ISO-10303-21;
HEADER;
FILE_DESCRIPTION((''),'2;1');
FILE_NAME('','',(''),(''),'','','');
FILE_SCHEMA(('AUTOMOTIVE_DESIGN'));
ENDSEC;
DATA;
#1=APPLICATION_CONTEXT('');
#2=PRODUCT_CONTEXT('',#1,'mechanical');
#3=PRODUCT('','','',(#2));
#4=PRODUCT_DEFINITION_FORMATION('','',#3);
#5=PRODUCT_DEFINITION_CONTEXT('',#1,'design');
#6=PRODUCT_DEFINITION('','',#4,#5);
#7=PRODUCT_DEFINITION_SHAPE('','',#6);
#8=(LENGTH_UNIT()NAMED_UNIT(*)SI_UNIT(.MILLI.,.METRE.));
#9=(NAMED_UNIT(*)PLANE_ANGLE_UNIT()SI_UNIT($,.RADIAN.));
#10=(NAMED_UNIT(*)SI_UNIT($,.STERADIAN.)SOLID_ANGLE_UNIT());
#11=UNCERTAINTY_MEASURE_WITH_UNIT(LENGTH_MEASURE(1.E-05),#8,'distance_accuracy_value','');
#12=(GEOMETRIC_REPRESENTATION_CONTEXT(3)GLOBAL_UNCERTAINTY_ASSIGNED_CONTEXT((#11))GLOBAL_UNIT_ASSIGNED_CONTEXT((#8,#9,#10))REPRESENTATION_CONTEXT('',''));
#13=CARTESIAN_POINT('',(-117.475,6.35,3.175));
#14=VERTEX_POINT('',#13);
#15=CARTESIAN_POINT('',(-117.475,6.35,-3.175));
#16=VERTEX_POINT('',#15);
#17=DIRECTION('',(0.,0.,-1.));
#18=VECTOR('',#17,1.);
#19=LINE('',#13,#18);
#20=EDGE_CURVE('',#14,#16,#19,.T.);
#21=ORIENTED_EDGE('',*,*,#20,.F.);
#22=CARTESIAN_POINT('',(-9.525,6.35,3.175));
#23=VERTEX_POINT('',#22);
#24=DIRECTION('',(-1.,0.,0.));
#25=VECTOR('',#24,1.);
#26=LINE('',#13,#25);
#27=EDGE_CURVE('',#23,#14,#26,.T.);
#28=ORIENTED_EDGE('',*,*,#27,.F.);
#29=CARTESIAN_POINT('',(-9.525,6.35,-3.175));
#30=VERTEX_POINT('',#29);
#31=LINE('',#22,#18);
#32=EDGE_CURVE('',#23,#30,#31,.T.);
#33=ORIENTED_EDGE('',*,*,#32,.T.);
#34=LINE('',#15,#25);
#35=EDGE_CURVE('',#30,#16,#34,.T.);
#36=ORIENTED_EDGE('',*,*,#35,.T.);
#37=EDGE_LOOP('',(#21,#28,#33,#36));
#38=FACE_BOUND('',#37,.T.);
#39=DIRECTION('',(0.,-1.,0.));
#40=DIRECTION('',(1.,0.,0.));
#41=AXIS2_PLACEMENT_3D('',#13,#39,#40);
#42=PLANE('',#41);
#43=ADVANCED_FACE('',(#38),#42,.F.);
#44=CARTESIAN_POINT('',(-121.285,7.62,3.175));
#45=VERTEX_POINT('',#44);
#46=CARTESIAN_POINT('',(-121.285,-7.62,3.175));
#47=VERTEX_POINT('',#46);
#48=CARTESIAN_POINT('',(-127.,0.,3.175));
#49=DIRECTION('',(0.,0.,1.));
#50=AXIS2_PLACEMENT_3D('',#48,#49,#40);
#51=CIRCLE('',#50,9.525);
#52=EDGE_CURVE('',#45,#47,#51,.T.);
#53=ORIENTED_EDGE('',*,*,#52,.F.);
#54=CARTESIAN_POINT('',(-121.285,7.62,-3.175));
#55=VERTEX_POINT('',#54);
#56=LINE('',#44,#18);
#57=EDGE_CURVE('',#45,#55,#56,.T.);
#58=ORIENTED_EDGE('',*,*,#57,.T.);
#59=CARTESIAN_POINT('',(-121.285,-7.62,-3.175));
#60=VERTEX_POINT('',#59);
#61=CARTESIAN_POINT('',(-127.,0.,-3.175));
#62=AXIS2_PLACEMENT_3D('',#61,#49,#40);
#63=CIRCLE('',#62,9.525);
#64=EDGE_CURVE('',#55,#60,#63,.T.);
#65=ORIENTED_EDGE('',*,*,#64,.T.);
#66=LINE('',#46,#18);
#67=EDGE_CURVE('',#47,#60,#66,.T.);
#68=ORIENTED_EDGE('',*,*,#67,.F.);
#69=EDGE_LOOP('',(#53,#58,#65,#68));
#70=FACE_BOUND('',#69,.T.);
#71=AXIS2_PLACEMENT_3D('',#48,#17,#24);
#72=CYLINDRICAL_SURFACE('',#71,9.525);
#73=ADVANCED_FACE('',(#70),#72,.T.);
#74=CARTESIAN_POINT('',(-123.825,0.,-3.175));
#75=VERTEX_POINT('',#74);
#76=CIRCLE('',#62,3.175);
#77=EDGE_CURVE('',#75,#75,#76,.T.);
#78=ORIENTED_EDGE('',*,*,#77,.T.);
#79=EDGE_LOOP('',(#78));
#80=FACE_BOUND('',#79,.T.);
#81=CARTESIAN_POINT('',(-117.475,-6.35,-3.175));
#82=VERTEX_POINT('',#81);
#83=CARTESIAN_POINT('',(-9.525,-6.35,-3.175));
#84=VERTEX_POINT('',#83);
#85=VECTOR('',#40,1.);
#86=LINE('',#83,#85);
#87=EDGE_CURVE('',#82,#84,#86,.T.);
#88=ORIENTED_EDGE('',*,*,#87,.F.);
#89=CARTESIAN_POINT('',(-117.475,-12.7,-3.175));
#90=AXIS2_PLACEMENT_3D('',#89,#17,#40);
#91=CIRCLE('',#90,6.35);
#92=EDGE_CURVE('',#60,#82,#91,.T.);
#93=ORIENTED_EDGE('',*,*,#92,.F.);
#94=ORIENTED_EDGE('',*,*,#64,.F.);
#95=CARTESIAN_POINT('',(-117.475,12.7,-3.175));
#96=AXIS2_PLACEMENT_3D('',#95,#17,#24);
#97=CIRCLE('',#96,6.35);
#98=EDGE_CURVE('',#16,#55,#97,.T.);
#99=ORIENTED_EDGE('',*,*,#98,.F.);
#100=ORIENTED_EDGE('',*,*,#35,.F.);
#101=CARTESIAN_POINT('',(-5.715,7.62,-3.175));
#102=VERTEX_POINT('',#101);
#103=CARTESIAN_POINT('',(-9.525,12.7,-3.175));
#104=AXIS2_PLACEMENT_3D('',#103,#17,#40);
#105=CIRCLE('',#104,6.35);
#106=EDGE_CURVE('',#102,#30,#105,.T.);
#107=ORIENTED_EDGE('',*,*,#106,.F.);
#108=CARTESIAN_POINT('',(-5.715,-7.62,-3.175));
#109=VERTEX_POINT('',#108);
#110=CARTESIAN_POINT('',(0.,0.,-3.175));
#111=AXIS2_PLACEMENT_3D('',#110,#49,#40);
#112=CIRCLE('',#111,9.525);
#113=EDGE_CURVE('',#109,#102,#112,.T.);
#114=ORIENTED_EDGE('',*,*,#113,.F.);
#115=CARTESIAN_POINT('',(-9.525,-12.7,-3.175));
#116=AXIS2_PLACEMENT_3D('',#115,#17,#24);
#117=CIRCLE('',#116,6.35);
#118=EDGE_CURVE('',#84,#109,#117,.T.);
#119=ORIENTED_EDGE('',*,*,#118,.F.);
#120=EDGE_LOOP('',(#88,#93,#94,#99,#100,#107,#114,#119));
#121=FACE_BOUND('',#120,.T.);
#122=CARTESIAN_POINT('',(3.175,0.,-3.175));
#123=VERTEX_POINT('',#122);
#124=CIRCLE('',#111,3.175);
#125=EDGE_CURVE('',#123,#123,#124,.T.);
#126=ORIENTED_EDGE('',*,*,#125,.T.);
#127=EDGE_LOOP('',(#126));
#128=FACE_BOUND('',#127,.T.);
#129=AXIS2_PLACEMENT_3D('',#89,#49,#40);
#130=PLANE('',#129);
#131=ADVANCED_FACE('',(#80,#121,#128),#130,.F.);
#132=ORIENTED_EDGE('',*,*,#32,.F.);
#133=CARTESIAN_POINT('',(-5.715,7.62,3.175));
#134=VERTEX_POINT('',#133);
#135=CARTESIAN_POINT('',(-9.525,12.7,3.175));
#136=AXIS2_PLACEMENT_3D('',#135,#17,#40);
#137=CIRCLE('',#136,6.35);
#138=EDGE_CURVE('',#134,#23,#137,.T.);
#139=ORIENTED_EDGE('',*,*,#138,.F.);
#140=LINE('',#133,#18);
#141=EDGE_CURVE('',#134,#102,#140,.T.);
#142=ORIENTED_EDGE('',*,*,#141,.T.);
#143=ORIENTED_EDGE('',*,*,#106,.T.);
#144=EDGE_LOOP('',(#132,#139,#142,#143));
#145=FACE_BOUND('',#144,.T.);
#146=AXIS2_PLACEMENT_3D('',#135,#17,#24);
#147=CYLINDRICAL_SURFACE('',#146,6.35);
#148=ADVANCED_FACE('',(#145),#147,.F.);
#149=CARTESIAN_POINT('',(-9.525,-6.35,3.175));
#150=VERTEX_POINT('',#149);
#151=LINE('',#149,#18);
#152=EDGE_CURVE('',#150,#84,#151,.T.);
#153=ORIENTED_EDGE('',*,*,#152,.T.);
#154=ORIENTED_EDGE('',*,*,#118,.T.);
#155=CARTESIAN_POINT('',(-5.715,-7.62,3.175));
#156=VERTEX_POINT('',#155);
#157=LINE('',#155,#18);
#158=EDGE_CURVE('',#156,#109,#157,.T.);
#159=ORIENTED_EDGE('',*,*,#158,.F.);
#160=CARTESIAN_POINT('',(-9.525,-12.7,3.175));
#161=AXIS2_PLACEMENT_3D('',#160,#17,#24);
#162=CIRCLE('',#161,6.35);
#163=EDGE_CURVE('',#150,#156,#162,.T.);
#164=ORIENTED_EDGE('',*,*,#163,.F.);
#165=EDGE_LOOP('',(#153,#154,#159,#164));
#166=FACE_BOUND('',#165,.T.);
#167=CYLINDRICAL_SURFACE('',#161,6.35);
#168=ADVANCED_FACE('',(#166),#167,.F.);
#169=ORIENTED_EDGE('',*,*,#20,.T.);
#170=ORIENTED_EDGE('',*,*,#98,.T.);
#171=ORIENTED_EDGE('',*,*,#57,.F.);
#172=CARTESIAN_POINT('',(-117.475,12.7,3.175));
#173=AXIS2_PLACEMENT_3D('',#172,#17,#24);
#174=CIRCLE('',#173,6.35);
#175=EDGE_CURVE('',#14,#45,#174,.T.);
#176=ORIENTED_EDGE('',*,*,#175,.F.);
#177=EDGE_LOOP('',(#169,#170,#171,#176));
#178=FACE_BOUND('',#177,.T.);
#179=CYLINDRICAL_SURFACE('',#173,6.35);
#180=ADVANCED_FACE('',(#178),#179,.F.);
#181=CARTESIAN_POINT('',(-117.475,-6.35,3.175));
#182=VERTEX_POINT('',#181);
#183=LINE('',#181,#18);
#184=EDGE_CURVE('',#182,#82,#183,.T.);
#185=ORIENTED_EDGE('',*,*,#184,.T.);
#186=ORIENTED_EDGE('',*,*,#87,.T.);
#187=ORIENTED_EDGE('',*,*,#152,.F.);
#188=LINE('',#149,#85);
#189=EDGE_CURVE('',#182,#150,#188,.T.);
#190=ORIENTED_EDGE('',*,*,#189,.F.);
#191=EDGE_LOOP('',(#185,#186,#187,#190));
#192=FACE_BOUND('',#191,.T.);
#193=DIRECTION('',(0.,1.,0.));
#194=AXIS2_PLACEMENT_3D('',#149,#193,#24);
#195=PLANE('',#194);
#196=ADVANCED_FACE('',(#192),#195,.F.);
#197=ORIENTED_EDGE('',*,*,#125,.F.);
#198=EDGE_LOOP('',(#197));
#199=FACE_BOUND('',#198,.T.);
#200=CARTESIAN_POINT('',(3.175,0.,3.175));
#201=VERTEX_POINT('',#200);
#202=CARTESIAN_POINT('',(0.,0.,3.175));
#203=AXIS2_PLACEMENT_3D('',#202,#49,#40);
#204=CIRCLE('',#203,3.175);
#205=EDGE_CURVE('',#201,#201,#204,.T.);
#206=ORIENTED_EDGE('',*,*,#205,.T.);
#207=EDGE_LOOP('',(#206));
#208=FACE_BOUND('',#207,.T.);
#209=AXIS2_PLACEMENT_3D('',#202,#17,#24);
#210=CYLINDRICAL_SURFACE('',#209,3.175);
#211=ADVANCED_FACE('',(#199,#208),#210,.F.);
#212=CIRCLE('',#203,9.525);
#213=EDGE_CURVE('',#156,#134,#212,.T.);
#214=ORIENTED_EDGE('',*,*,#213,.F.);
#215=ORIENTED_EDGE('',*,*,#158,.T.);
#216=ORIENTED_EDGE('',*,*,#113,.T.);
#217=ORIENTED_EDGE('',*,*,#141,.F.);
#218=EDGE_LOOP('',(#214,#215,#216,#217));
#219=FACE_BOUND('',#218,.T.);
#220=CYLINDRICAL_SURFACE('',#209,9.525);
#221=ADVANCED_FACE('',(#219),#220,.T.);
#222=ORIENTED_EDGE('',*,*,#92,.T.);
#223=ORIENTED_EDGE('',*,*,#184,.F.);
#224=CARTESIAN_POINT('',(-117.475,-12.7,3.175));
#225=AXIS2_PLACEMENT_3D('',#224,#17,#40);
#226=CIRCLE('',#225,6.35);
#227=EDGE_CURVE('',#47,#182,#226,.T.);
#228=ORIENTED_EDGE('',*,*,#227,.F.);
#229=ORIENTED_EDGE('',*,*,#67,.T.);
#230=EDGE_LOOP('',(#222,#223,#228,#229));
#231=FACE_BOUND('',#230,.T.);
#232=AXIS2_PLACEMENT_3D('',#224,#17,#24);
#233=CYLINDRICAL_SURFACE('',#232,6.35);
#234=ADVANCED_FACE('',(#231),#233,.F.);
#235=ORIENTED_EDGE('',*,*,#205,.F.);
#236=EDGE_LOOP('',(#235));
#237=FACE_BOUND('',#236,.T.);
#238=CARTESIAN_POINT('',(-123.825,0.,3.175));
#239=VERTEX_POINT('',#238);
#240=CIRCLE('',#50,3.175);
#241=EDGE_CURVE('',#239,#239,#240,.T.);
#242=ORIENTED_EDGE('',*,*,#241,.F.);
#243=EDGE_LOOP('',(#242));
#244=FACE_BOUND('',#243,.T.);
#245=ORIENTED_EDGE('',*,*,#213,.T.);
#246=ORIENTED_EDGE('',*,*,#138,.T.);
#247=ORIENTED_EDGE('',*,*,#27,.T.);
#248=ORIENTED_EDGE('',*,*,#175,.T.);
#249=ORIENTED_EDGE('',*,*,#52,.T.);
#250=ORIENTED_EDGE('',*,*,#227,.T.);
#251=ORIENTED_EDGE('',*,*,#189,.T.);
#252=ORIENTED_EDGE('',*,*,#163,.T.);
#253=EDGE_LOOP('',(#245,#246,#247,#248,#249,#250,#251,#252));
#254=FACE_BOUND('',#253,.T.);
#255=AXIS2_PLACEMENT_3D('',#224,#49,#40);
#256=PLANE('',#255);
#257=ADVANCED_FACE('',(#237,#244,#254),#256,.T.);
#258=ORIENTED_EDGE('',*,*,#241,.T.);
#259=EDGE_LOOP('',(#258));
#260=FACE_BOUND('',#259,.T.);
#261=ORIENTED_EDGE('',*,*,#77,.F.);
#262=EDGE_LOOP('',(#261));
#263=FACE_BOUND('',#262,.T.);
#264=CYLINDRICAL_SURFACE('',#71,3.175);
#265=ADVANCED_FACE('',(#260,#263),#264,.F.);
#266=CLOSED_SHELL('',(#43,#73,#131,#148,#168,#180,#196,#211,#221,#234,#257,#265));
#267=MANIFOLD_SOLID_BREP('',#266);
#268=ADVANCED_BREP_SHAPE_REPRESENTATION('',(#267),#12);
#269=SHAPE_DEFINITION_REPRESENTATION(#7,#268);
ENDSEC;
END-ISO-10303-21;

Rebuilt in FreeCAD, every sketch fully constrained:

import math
import FreeCAD as App
import Part
import Sketcher
from FreeCAD import Vector
Q = App.Units.Quantity

doc = App.newDocument("Part")
body = doc.addObject("PartDesign::Body", "Body")

# Sketch on XY plane
sketch1 = body.newObject("Sketcher::SketchObject", "Sketch")
sketch1.AttachmentSupport = (doc.getObject("XY_Plane"), [""])
sketch1.MapMode = "FlatFace"
sketch1.addGeometry([
    Part.LineSegment(Vector(-9.5, 6.3, 0), Vector(-117.5, 6.3, 0)),  # 0
    Part.ArcOfCircle(Part.Circle(Vector(-117.5, 12.7, 0), Vector(0, 0, 1), 6.3), math.radians(-127), math.radians(-90)),  # 1
    Part.ArcOfCircle(Part.Circle(Vector(-127, 0, 0), Vector(0, 0, 1), 9.5), math.radians(53), math.radians(307)),  # 2
    Part.ArcOfCircle(Part.Circle(Vector(-117.5, -12.7, 0), Vector(0, 0, 1), 6.3), math.radians(90), math.radians(127)),  # 3
    Part.LineSegment(Vector(-117.5, -6.3, 0), Vector(-9.5, -6.3, 0)),  # 4
    Part.ArcOfCircle(Part.Circle(Vector(-9.5, -12.7, 0), Vector(0, 0, 1), 6.3), math.radians(53), math.radians(90)),  # 5
    Part.ArcOfCircle(Part.Circle(Vector(0, 0, 0), Vector(0, 0, 1), 9.5), math.radians(-127), math.radians(127)),  # 6
    Part.ArcOfCircle(Part.Circle(Vector(-9.5, 12.7, 0), Vector(0, 0, 1), 6.3), math.radians(-90), math.radians(-53)),  # 7
    Part.Circle(Vector(0, 0, 0), Vector(0, 0, 1), 3.2),  # 8
    Part.Circle(Vector(-127, 0, 0), Vector(0, 0, 1), 3.2),  # 9
], False)
sketch1.addConstraint([
    Sketcher.Constraint("Tangent", 0, 2, 1, 2),
    Sketcher.Constraint("Tangent", 1, 1, 2, 1),
    Sketcher.Constraint("Tangent", 2, 2, 3, 2),
    Sketcher.Constraint("Tangent", 3, 1, 4, 1),
    Sketcher.Constraint("Tangent", 4, 2, 5, 2),
    Sketcher.Constraint("Tangent", 5, 1, 6, 1),
    Sketcher.Constraint("Tangent", 6, 2, 7, 2),
    Sketcher.Constraint("Tangent", 7, 1, 0, 1),
    Sketcher.Constraint("Horizontal", 0),
    Sketcher.Constraint("Horizontal", 4),
    Sketcher.Constraint("Coincident", 6, 3, -1, 1),
    Sketcher.Constraint("Coincident", 8, 3, -1, 1),
    Sketcher.Constraint("Coincident", 9, 3, 2, 3),
    Sketcher.Constraint("Equal", 1, 3),
    Sketcher.Constraint("Equal", 3, 5),
    Sketcher.Constraint("Equal", 2, 6),
    Sketcher.Constraint("Equal", 5, 7),
    Sketcher.Constraint("Equal", 8, 9),
    Sketcher.Constraint("Symmetric", 1, 3, 3, 3, -1),
    Sketcher.Constraint("Diameter", 8, Q("0.25 in")),
    Sketcher.Constraint("Radius", 1, Q("0.25 in")),
    Sketcher.Constraint("DistanceX", 2, 3, -1, 1, Q("5 in")),
    Sketcher.Constraint("Radius", 2, Q("0.375 in")),
    Sketcher.Constraint("DistanceY", 3, 3, 1, 3, Q("1 in")),
])
pad1 = body.newObject("PartDesign::Pad", "Pad")
pad1.Profile = sketch1
pad1.Length = Q("0.25 in")
pad1.Midplane = True

doc.recompute()
